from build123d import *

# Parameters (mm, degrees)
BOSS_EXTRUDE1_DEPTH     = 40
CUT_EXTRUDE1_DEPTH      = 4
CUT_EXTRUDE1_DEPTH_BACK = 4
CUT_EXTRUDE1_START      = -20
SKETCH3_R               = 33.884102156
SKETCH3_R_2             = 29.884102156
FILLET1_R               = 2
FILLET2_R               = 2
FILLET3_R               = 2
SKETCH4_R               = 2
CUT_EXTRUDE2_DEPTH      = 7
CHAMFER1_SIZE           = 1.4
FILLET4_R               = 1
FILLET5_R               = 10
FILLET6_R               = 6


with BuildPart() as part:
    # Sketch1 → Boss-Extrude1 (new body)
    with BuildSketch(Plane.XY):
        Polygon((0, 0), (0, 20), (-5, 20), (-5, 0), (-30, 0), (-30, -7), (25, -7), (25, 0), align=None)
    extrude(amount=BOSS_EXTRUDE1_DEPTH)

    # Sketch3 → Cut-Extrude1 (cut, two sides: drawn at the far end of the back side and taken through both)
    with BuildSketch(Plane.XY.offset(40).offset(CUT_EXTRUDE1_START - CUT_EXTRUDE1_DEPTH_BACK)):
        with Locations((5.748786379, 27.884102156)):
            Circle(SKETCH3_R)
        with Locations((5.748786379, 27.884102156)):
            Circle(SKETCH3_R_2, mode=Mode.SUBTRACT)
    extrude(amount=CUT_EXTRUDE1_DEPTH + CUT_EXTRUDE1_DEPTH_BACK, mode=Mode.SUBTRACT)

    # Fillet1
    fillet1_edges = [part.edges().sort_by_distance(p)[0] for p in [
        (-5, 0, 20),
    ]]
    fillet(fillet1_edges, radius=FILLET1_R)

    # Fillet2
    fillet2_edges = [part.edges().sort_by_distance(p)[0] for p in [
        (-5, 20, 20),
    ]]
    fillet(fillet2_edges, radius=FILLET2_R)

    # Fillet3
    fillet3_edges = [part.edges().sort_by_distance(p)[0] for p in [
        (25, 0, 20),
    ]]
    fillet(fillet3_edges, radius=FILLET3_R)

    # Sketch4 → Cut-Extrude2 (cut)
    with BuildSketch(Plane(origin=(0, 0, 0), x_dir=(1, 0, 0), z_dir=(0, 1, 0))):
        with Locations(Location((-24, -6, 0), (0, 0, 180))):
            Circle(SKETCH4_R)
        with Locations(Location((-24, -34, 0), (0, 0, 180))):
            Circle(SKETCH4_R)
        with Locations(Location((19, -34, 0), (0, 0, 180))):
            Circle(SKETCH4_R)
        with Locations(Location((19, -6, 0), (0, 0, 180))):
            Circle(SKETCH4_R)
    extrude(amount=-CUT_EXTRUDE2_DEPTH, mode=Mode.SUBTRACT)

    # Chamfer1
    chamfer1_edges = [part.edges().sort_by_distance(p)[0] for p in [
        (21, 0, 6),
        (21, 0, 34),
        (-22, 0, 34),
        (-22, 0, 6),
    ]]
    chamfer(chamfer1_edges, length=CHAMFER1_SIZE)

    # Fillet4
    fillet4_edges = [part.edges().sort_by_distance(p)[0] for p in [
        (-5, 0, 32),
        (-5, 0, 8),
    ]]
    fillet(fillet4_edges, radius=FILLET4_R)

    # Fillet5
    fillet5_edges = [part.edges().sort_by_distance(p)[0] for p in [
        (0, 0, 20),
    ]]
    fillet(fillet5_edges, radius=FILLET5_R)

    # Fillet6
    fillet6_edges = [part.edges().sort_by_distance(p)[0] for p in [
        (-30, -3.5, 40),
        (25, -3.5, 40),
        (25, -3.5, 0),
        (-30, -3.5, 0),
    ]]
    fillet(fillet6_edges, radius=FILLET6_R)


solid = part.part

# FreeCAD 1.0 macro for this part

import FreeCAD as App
import Part
import Sketcher

V = App.Vector
Q = App.Units.Quantity


def edges_at(feature, points):
    """Names of the edges that pass closest to the given points."""
    edges = feature.Shape.Edges
    near = lambda p: min(range(len(edges)), key=lambda i: edges[i].distToShape(Part.Vertex(*p))[0])
    return sorted({f"Edge{near(p) + 1}" for p in points})

doc = App.newDocument("Part")
body = doc.addObject("PartDesign::Body", "Body")

# Sketch on XY plane
sketch1 = body.newObject("Sketcher::SketchObject", "Sketch")
sketch1.AttachmentSupport = (doc.getObject("XY_Plane"), [""])
sketch1.MapMode = "FlatFace"
sketch1.addGeometry([
    Part.LineSegment(V(0, 0, 0), V(0, 20, 0)),  # 0
    Part.LineSegment(V(0, 20, 0), V(-5, 20, 0)),  # 1
    Part.LineSegment(V(-5, 20, 0), V(-5, 0, 0)),  # 2
    Part.LineSegment(V(-5, 0, 0), V(-30, 0, 0)),  # 3
    Part.LineSegment(V(-30, 0, 0), V(-30, -7, 0)),  # 4
    Part.LineSegment(V(-30, -7, 0), V(25, -7, 0)),  # 5
    Part.LineSegment(V(25, -7, 0), V(25, 0, 0)),  # 6
    Part.LineSegment(V(25, 0, 0), V(0, 0, 0)),  # 7
], False)
sketch1.addConstraint([
    Sketcher.Constraint("Coincident", 0, 2, 1, 1),
    Sketcher.Constraint("Coincident", 1, 2, 2, 1),
    Sketcher.Constraint("Coincident", 2, 2, 3, 1),
    Sketcher.Constraint("Coincident", 3, 2, 4, 1),
    Sketcher.Constraint("Coincident", 4, 2, 5, 1),
    Sketcher.Constraint("Coincident", 5, 2, 6, 1),
    Sketcher.Constraint("Coincident", 6, 2, 7, 1),
    Sketcher.Constraint("Coincident", 7, 2, 0, 1),
    Sketcher.Constraint("Vertical", 0),
    Sketcher.Constraint("Horizontal", 1),
    Sketcher.Constraint("Vertical", 2),
    Sketcher.Constraint("Horizontal", 3),
    Sketcher.Constraint("Vertical", 4),
    Sketcher.Constraint("Horizontal", 5),
    Sketcher.Constraint("Vertical", 6),
    Sketcher.Constraint("Horizontal", 7),
    Sketcher.Constraint("Coincident", 7, 2, -1, 1),
    Sketcher.Constraint("PointOnObject", 2, 2, -1),
    Sketcher.Constraint("Equal", 3, 7),
    Sketcher.Constraint("DistanceX", 1, 2, 1, 1, Q("5 mm")),
    Sketcher.Constraint("DistanceX", 3, 2, 3, 1, Q("25 mm")),
    Sketcher.Constraint("DistanceY", 0, 1, 0, 2, Q("20 mm")),
    Sketcher.Constraint("DistanceY", 4, 2, 4, 1, Q("7 mm")),
])
pad1 = body.newObject("PartDesign::Pad", "Pad")
pad1.Profile = sketch1
pad1.Length = 40

# Sketch on XY plane
sketch2 = body.newObject("Sketcher::SketchObject", "Sketch001")
sketch2.AttachmentSupport = (doc.getObject("XY_Plane"), [""])
sketch2.MapMode = "FlatFace"
sketch2.AttachmentOffset = App.Placement(V(0, 0, 20), App.Rotation())
sketch2.addGeometry([
    Part.Circle(V(6, 28, 0), V(0, 0, 1), 34),
    Part.Circle(V(6, 28, 0), V(0, 0, 1), 30),
], False)
sketch2.addConstraint([
    Sketcher.Constraint("Coincident", 1, 3, 0, 3),
    Sketcher.Constraint("Diameter", 0, Q("67.768204 mm")),
    Sketcher.Constraint("Diameter", 1, Q("59.768204 mm")),
    Sketcher.Constraint("DistanceX", -1, 1, 0, 3, Q("5.748786 mm")),
    Sketcher.Constraint("DistanceY", -1, 1, 0, 3, Q("27.884102 mm")),
])
pocket1 = body.newObject("PartDesign::Pocket", "Pocket")
pocket1.Profile = sketch2
pocket1.Type = "TwoLengths"
pocket1.Length = 4
pocket1.Length2 = 4
pocket1.Reversed = True
doc.recompute()

fillet = body.newObject("PartDesign::Fillet", "Fillet")
fillet.Base = (pocket1, edges_at(pocket1, [(-5, 0, 20)]))
fillet.Radius = 2
doc.recompute()

fillet2 = body.newObject("PartDesign::Fillet", "Fillet001")
fillet2.Base = (fillet, edges_at(fillet, [(-5, 20, 20)]))
fillet2.Radius = 2
doc.recompute()

fillet3 = body.newObject("PartDesign::Fillet", "Fillet002")
fillet3.Base = (fillet2, edges_at(fillet2, [(25, 0, 20)]))
fillet3.Radius = 2

# Sketch on XZ plane
sketch3 = body.newObject("Sketcher::SketchObject", "Sketch002")
sketch3.AttachmentSupport = (doc.getObject("XZ_Plane"), [""])
sketch3.MapMode = "FlatFace"
sketch3.addGeometry([
    Part.Circle(V(-24, 6, 0), V(0, 0, 1), 2),
    Part.Circle(V(-24, 34, 0), V(0, 0, 1), 2),
    Part.Circle(V(19, 34, 0), V(0, 0, 1), 2),
    Part.Circle(V(19, 6, 0), V(0, 0, 1), 2),
], False)
sketch3.addConstraint([
    Sketcher.Constraint("Equal", 0, 1),
    Sketcher.Constraint("Equal", 1, 2),
    Sketcher.Constraint("Equal", 2, 3),
    Sketcher.Constraint("Horizontal", 1, 3, 2, 3),
    Sketcher.Constraint("Horizontal", 0, 3, 3, 3),
    Sketcher.Constraint("Vertical", 0, 3, 1, 3),
    Sketcher.Constraint("Vertical", 2, 3, 3, 3),
    Sketcher.Constraint("Diameter", 0, Q("4 mm")),
    Sketcher.Constraint("DistanceX", 0, 3, -1, 1, Q("24 mm")),
    Sketcher.Constraint("DistanceY", -1, 1, 0, 3, Q("6 mm")),
    Sketcher.Constraint("DistanceY", -1, 1, 1, 3, Q("34 mm")),
    Sketcher.Constraint("DistanceX", -1, 1, 2, 3, Q("19 mm")),
])
pocket2 = body.newObject("PartDesign::Pocket", "Pocket001")
pocket2.Profile = sketch3
pocket2.Length = 7
pocket2.Reversed = True
doc.recompute()

chamfer = body.newObject("PartDesign::Chamfer", "Chamfer")
chamfer.Base = (pocket2, edges_at(pocket2, [
    (21, 0, 6),
    (21, 0, 34),
    (-22, 0, 34),
    (-22, 0, 6),
]))
chamfer.Size = 1.4
doc.recompute()

fillet4 = body.newObject("PartDesign::Fillet", "Fillet003")
fillet4.Base = (chamfer, edges_at(chamfer, [(-5, 0, 32), (-5, 0, 8)]))
fillet4.Radius = 1
doc.recompute()

fillet5 = body.newObject("PartDesign::Fillet", "Fillet004")
fillet5.Base = (fillet4, edges_at(fillet4, [(0, 0, 20)]))
fillet5.Radius = 10
doc.recompute()

fillet6 = body.newObject("PartDesign::Fillet", "Fillet005")
fillet6.Base = (fillet5, edges_at(fillet5, [
    (-30, -3.5, 40),
    (25, -3.5, 40),
    (25, -3.5, 0),
    (-30, -3.5, 0),
]))
fillet6.Radius = 6

doc.recompute()
